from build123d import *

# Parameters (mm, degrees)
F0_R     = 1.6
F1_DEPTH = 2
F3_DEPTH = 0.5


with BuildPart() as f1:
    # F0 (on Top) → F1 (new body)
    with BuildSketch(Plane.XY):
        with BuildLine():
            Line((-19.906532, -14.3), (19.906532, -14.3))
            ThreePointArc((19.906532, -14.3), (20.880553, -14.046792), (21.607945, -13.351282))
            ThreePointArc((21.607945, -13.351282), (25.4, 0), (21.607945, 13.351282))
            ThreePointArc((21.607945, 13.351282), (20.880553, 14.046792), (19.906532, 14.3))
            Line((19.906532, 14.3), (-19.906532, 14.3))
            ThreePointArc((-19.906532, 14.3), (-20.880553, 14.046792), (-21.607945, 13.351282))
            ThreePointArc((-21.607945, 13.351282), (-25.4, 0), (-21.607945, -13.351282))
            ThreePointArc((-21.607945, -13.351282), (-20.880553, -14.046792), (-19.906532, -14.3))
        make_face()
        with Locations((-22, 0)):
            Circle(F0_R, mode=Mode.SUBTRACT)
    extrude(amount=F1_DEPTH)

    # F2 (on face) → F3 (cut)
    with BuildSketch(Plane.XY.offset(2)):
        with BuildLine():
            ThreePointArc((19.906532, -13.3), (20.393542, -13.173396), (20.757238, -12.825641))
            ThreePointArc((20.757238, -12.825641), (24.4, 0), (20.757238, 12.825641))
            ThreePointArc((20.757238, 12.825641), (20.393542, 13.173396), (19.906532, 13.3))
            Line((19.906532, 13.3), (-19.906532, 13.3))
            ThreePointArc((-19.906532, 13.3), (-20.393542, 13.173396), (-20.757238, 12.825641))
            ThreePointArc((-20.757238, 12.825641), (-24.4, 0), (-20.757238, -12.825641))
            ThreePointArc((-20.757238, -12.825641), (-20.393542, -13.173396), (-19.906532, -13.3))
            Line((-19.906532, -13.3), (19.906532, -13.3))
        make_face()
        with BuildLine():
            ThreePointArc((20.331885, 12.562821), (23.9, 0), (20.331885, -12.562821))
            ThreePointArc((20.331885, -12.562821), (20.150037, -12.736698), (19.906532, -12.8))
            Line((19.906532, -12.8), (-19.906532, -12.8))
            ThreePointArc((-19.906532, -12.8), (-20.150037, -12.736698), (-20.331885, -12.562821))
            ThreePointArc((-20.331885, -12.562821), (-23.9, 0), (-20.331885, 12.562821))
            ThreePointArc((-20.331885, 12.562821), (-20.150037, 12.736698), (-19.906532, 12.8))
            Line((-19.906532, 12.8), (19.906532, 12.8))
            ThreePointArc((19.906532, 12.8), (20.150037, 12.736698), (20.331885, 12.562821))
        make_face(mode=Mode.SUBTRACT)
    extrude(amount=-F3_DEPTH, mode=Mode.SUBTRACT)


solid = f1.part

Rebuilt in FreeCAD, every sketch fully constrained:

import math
import FreeCAD as App
import Part
import Sketcher
from FreeCAD import Vector
Q = App.Units.Quantity

doc = App.newDocument("Part")
body = doc.addObject("PartDesign::Body", "Body")

# Sketch on XY plane
sketch1 = body.newObject("Sketcher::SketchObject", "Sketch")
sketch1.AttachmentSupport = (doc.getObject("XY_Plane"), [""])
sketch1.MapMode = "FlatFace"
sketch1.addGeometry(Part.LineSegment(Vector(-19.906532, -14.3, 0), Vector(19.906532, -14.3, 0)), False)
sketch1.addGeometry(Part.ArcOfCircle(Part.Circle(Vector(19.906531, -12.299999, 0), Vector(0, 0, 1), 2.000001), math.radians(-89.999978), math.radians(-31.711428)), False)
sketch1.addGeometry(Part.ArcOfCircle(Part.Circle(Vector(-0.000002, 0, 0), Vector(0, 0, 1), 25.400002), math.radians(-31.711403), math.radians(31.711403)), False)
sketch1.addGeometry(Part.ArcOfCircle(Part.Circle(Vector(19.906531, 12.299999, 0), Vector(0, 0, 1), 2.000001), math.radians(31.711428), math.radians(89.999978)), False)
sketch1.addGeometry(Part.LineSegment(Vector(19.906532, 14.3, 0), Vector(-19.906532, 14.3, 0)), False)
sketch1.addGeometry(Part.ArcOfCircle(Part.Circle(Vector(-19.906531, 12.299999, 0), Vector(0, 0, 1), 2.000001), math.radians(90.000022), math.radians(148.288572)), False)
sketch1.addGeometry(Part.ArcOfCircle(Part.Circle(Vector(0.000002, 0, 0), Vector(0, 0, 1), 25.400002), math.radians(148.288597), math.radians(211.711403)), False)
sketch1.addGeometry(Part.ArcOfCircle(Part.Circle(Vector(-19.906531, -12.299999, 0), Vector(0, 0, 1), 2.000001), math.radians(-148.288572), math.radians(-90.000022)), False)
sketch1.addGeometry(Part.Circle(Vector(-22, 0, 0), Vector(0, 0, 1), 1.6), False)
sketch1.addConstraint(Sketcher.Constraint("Tangent", 0, 2, 1, 1))
sketch1.addConstraint(Sketcher.Constraint("Tangent", 1, 2, 2, 1))
sketch1.addConstraint(Sketcher.Constraint("Tangent", 2, 2, 3, 1))
sketch1.addConstraint(Sketcher.Constraint("Tangent", 3, 2, 4, 1))
sketch1.addConstraint(Sketcher.Constraint("Tangent", 4, 2, 5, 1))
sketch1.addConstraint(Sketcher.Constraint("Tangent", 5, 2, 6, 1))
sketch1.addConstraint(Sketcher.Constraint("Tangent", 6, 2, 7, 1))
sketch1.addConstraint(Sketcher.Constraint("Tangent", 7, 2, 0, 1))
sketch1.addConstraint(Sketcher.Constraint("Horizontal", 0))
sketch1.addConstraint(Sketcher.Constraint("Horizontal", 4))
sketch1.addConstraint(Sketcher.Constraint("Coincident", 2, 3, -1, 1))
sketch1.addConstraint(Sketcher.Constraint("Coincident", 6, 3, -1, 1))
sketch1.addConstraint(Sketcher.Constraint("Equal", 1, 3))
sketch1.addConstraint(Sketcher.Constraint("Equal", 3, 5))
sketch1.addConstraint(Sketcher.Constraint("Equal", 2, 6))
sketch1.addConstraint(Sketcher.Constraint("Equal", 5, 7))
sketch1.addConstraint(Sketcher.Constraint("PointOnObject", 8, 3, -1))
sketch1.addConstraint(Sketcher.Constraint("Vertical", 1, 3, 3, 3))
sketch1.addConstraint(Sketcher.Constraint("Radius", 1, Q("2.000001 mm")))
sketch1.addConstraint(Sketcher.Constraint("Diameter", 8, Q("3.2 mm")))
sketch1.addConstraint(Sketcher.Constraint("DistanceX", 8, 3, -1, 1, Q("22 mm")))
sketch1.addConstraint(Sketcher.Constraint("DistanceY", 1, 3, -1, 1, Q("12.299999 mm")))
sketch1.addConstraint(Sketcher.Constraint("Radius", 2, Q("25.400002 mm")))
pad1 = body.newObject("PartDesign::Pad", "Pad")
pad1.Profile = sketch1
pad1.Length = 2

# Sketch on XY plane
sketch2 = body.newObject("Sketcher::SketchObject", "Sketch001")
sketch2.AttachmentSupport = (doc.getObject("XY_Plane"), [""])
sketch2.MapMode = "FlatFace"
sketch2.AttachmentOffset = App.Placement(Vector(0, 0, 2), App.Rotation())
sketch2.addGeometry(Part.ArcOfCircle(Part.Circle(Vector(19.906531, -12.299999, 0), Vector(0, 0, 1), 1.000001), math.radians(-89.999949), math.radians(-31.711428)), False)
sketch2.addGeometry(Part.ArcOfCircle(Part.Circle(Vector(0, 0, 0), Vector(0, 0, 1), 24.4), math.radians(-31.711407), math.radians(31.711407)), False)
sketch2.addGeometry(Part.ArcOfCircle(Part.Circle(Vector(19.906531, 12.299999, 0), Vector(0, 0, 1), 1.000001), math.radians(31.711428), math.radians(89.999949)), False)
sketch2.addGeometry(Part.LineSegment(Vector(19.906532, 13.3, 0), Vector(-19.906532, 13.3, 0)), False)
sketch2.addGeometry(Part.ArcOfCircle(Part.Circle(Vector(-19.906531, 12.299999, 0), Vector(0, 0, 1), 1.000001), math.radians(90.000051), math.radians(148.288572)), False)
sketch2.addGeometry(Part.ArcOfCircle(Part.Circle(Vector(0, 0, 0), Vector(0, 0, 1), 24.4), math.radians(148.288593), math.radians(211.711407)), False)
sketch2.addGeometry(Part.ArcOfCircle(Part.Circle(Vector(-19.906531, -12.299999, 0), Vector(0, 0, 1), 1.000001), math.radians(-148.288572), math.radians(-90.000051)), False)
sketch2.addGeometry(Part.LineSegment(Vector(-19.906532, -13.3, 0), Vector(19.906532, -13.3, 0)), False)
sketch2.addGeometry(Part.ArcOfCircle(Part.Circle(Vector(19.906531, 12.299999, 0), Vector(0, 0, 1), 0.500001), math.radians(31.711561), math.radians(89.999918)), False)
sketch2.addGeometry(Part.ArcOfCircle(Part.Circle(Vector(-0.000003, 0, 0), Vector(0, 0, 1), 23.900003), math.radians(-31.711404), math.radians(31.711404)), False)
sketch2.addGeometry(Part.ArcOfCircle(Part.Circle(Vector(19.906531, -12.299999, 0), Vector(0, 0, 1), 0.500001), math.radians(-89.999918), math.radians(-31.711561)), False)
sketch2.addGeometry(Part.LineSegment(Vector(19.906532, -12.8, 0), Vector(-19.906532, -12.8, 0)), False)
sketch2.addGeometry(Part.ArcOfCircle(Part.Circle(Vector(-19.906531, -12.299999, 0), Vector(0, 0, 1), 0.500001), math.radians(-148.288439), math.radians(-90.000082)), False)
sketch2.addGeometry(Part.ArcOfCircle(Part.Circle(Vector(0.000003, 0, 0), Vector(0, 0, 1), 23.900003), math.radians(148.288596), math.radians(211.711404)), False)
sketch2.addGeometry(Part.ArcOfCircle(Part.Circle(Vector(-19.906531, 12.299999, 0), Vector(0, 0, 1), 0.500001), math.radians(90.000082), math.radians(148.288439)), False)
sketch2.addGeometry(Part.LineSegment(Vector(-19.906532, 12.8, 0), Vector(19.906532, 12.8, 0)), False)
sketch2.addConstraint(Sketcher.Constraint("Tangent", 0, 2, 1, 1))
sketch2.addConstraint(Sketcher.Constraint("Tangent", 1, 2, 2, 1))
sketch2.addConstraint(Sketcher.Constraint("Tangent", 2, 2, 3, 1))
sketch2.addConstraint(Sketcher.Constraint("Tangent", 3, 2, 4, 1))
sketch2.addConstraint(Sketcher.Constraint("Tangent", 4, 2, 5, 1))
sketch2.addConstraint(Sketcher.Constraint("Tangent", 5, 2, 6, 1))
sketch2.addConstraint(Sketcher.Constraint("Tangent", 6, 2, 7, 1))
sketch2.addConstraint(Sketcher.Constraint("Tangent", 7, 2, 0, 1))
sketch2.addConstraint(Sketcher.Constraint("Coincident", 8, 1, 9, 2))
sketch2.addConstraint(Sketcher.Constraint("Coincident", 9, 1, 10, 2))
sketch2.addConstraint(Sketcher.Constraint("Tangent", 10, 1, 11, 1))
sketch2.addConstraint(Sketcher.Constraint("Tangent", 11, 2, 12, 2))
sketch2.addConstraint(Sketcher.Constraint("Coincident", 12, 1, 13, 2))
sketch2.addConstraint(Sketcher.Constraint("Coincident", 13, 1, 14, 2))
sketch2.addConstraint(Sketcher.Constraint("Tangent", 14, 1, 15, 1))
sketch2.addConstraint(Sketcher.Constraint("Tangent", 15, 2, 8, 2))
sketch2.addConstraint(Sketcher.Constraint("Horizontal", 3))
sketch2.addConstraint(Sketcher.Constraint("Horizontal", 7))
sketch2.addConstraint(Sketcher.Constraint("Horizontal", 11))
sketch2.addConstraint(Sketcher.Constraint("Horizontal", 15))
sketch2.addConstraint(Sketcher.Constraint("Coincident", 1, 3, -1, 1))
sketch2.addConstraint(Sketcher.Constraint("Coincident", 5, 3, -1, 1))
sketch2.addConstraint(Sketcher.Constraint("Coincident", 9, 3, -1, 1))
sketch2.addConstraint(Sketcher.Constraint("Coincident", 13, 3, -1, 1))
sketch2.addConstraint(Sketcher.Constraint("Coincident", 8, 3, 2, 3))
sketch2.addConstraint(Sketcher.Constraint("Coincident", 10, 3, 0, 3))
sketch2.addConstraint(Sketcher.Constraint("Coincident", 12, 3, 6, 3))
sketch2.addConstraint(Sketcher.Constraint("Equal", 0, 2))
sketch2.addConstraint(Sketcher.Constraint("Equal", 2, 4))
sketch2.addConstraint(Sketcher.Constraint("Equal", 1, 5))
sketch2.addConstraint(Sketcher.Constraint("Equal", 4, 6))
sketch2.addConstraint(Sketcher.Constraint("Equal", 12, 14))
sketch2.addConstraint(Sketcher.Constraint("Horizontal", 9, 1, 12, 1))
sketch2.addConstraint(Sketcher.Constraint("Horizontal", 8, 1, 13, 1))
sketch2.addConstraint(Sketcher.Constraint("Vertical", 0, 3, 2, 3))
sketch2.addConstraint(Sketcher.Constraint("Vertical", 8, 1, 9, 1))
sketch2.addConstraint(Sketcher.Constraint("Radius", 0, Q("1.000001 mm")))
sketch2.addConstraint(Sketcher.Constraint("Radius", 1, Q("24.4 mm")))
sketch2.addConstraint(Sketcher.Constraint("Radius", 8, Q("0.500001 mm")))
sketch2.addConstraint(Sketcher.Constraint("DistanceY", 0, 3, -1, 1, Q("12.299999 mm")))
sketch2.addConstraint(Sketcher.Constraint("DistanceY", -1, 1, 8, 1, Q("12.562821 mm")))
pocket1 = body.newObject("PartDesign::Pocket", "Pocket")
pocket1.Profile = sketch2
pocket1.Length = 0.5

doc.recompute()
